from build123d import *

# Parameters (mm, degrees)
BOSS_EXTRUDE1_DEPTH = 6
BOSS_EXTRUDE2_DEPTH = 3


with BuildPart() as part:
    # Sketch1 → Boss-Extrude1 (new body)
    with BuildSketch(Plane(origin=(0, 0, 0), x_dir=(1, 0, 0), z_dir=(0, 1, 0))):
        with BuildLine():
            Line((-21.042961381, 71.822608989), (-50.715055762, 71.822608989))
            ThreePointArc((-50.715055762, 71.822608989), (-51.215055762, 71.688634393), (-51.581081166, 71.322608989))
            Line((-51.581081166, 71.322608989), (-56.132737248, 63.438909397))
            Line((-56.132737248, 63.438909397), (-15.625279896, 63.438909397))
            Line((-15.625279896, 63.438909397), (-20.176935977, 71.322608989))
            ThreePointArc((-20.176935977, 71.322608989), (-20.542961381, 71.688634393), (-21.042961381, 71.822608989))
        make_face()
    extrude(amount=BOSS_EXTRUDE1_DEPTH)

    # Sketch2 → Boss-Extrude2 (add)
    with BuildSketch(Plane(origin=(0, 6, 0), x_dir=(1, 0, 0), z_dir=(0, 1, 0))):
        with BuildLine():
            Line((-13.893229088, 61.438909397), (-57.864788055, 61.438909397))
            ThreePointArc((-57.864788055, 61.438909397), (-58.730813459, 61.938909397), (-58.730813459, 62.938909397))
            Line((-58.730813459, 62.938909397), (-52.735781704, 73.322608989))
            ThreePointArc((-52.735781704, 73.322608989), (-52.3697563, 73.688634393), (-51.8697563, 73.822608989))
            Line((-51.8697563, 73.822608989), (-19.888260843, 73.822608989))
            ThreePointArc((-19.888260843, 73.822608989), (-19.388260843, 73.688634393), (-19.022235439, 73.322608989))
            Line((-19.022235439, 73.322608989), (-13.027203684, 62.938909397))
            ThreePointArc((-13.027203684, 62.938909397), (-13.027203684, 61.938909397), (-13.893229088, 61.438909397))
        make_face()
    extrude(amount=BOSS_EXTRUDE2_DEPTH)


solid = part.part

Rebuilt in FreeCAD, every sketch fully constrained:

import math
import FreeCAD as App
import Part
import Sketcher

V = App.Vector
Q = App.Units.Quantity

doc = App.newDocument("Part")
body = doc.addObject("PartDesign::Body", "Body")

# Sketch on XZ plane
sketch1 = doc.addObject("Sketcher::SketchObject", "Sketch")
body.addObject(sketch1)
sketch1.AttachmentSupport = (doc.XZ_Plane, [""])
sketch1.MapMode = "FlatFace"
sketch1.addGeometry([
    Part.LineSegment(V(-21.042961, -71.822609, 0), V(-50.715056, -71.822609, 0)),  # 0
    Part.ArcOfCircle(Part.Circle(V(-50.715056, -70.822609, 0), V(0, 0, 1), 1), math.radians(-150), math.radians(-90)),  # 1
    Part.LineSegment(V(-51.581081, -71.322609, 0), V(-56.132737, -63.438909, 0)),  # 2
    Part.LineSegment(V(-56.132737, -63.438909, 0), V(-15.62528, -63.438909, 0)),  # 3
    Part.LineSegment(V(-15.62528, -63.438909, 0), V(-20.176936, -71.322609, 0)),  # 4
    Part.ArcOfCircle(Part.Circle(V(-21.042961, -70.822609, 0), V(0, 0, 1), 1), math.radians(-90), math.radians(-30)),  # 5
], False)
sketch1.addConstraint([
    Sketcher.Constraint("Tangent", 0, 2, 1, 2),
    Sketcher.Constraint("Tangent", 1, 1, 2, 1),
    Sketcher.Constraint("Coincident", 2, 2, 3, 1),
    Sketcher.Constraint("Coincident", 3, 2, 4, 1),
    Sketcher.Constraint("Tangent", 4, 2, 5, 2),
    Sketcher.Constraint("Tangent", 5, 1, 0, 1),
    Sketcher.Constraint("Horizontal", 0),
    Sketcher.Constraint("Horizontal", 3),
    Sketcher.Constraint("Equal", 1, 5),
    Sketcher.Constraint("Horizontal", 1, 1, 4, 2),
    Sketcher.Constraint("Radius", 1, 1.0),
    Sketcher.Constraint("Angle", 2, Q("120 deg")),
    Sketcher.Constraint("DistanceY", 1, 1, 2, 2, 7.8837),
    Sketcher.Constraint("DistanceX", 1, 1, 3, 2, 35.955801),
    Sketcher.Constraint("DistanceY", 1, 3, -1, 1, 70.822609),
    Sketcher.Constraint("DistanceX", 5, 3, -1, 1, 21.042961),
])
pad1 = doc.addObject("PartDesign::Pad", "Pad")
body.addObject(pad1)
pad1.Profile = sketch1
pad1.Length = 6
pad1.Reversed = True

# Sketch on XZ plane
sketch2 = doc.addObject("Sketcher::SketchObject", "Sketch001")
body.addObject(sketch2)
sketch2.AttachmentSupport = (doc.XZ_Plane, [""])
sketch2.MapMode = "FlatFace"
sketch2.AttachmentOffset = App.Placement(V(0, 0, -6), App.Rotation())
sketch2.addGeometry([
    Part.LineSegment(V(-57.864788, -61.438909, 0), V(-13.893229, -61.438909, 0)),  # 0
    Part.ArcOfCircle(Part.Circle(V(-13.893229, -62.438909, 0), V(0, 0, 1), 1), math.radians(-30), math.radians(90)),  # 1
    Part.LineSegment(V(-13.027204, -62.938909, 0), V(-19.022235, -73.322609, 0)),  # 2
    Part.ArcOfCircle(Part.Circle(V(-19.888261, -72.822609, 0), V(0, 0, 1), 1), math.radians(-90), math.radians(-30)),  # 3
    Part.LineSegment(V(-19.888261, -73.822609, 0), V(-51.869756, -73.822609, 0)),  # 4
    Part.ArcOfCircle(Part.Circle(V(-51.869756, -72.822609, 0), V(0, 0, 1), 1), math.radians(-150), math.radians(-90)),  # 5
    Part.LineSegment(V(-52.735782, -73.322609, 0), V(-58.730813, -62.938909, 0)),  # 6
    Part.ArcOfCircle(Part.Circle(V(-57.864788, -62.438909, 0), V(0, 0, 1), 1), math.radians(90), math.radians(210)),  # 7
], False)
sketch2.addConstraint([
    Sketcher.Constraint("Tangent", 0, 2, 1, 2),
    Sketcher.Constraint("Tangent", 1, 1, 2, 1),
    Sketcher.Constraint("Tangent", 2, 2, 3, 2),
    Sketcher.Constraint("Tangent", 3, 1, 4, 1),
    Sketcher.Constraint("Tangent", 4, 2, 5, 2),
    Sketcher.Constraint("Tangent", 5, 1, 6, 1),
    Sketcher.Constraint("Tangent", 6, 2, 7, 2),
    Sketcher.Constraint("Tangent", 7, 1, 0, 1),
    Sketcher.Constraint("Horizontal", 0),
    Sketcher.Constraint("Horizontal", 4),
    Sketcher.Constraint("Equal", 1, 3),
    Sketcher.Constraint("Equal", 3, 5),
    Sketcher.Constraint("Equal", 5, 7),
    Sketcher.Constraint("Horizontal", 2, 2, 5, 1),
    Sketcher.Constraint("Radius", 1, 1.0),
    Sketcher.Constraint("Angle", 2, Q("-120 deg")),
    Sketcher.Constraint("DistanceX", 0, 1, 0, 2, 43.971559),
    Sketcher.Constraint("DistanceY", 3, 3, 1, 3, 10.3837),
    Sketcher.Constraint("DistanceX", 1, 3, -1, 1, 13.893229),
    Sketcher.Constraint("DistanceY", 1, 3, -1, 1, 62.438909),
])
pad2 = doc.addObject("PartDesign::Pad", "Pad001")
body.addObject(pad2)
pad2.Profile = sketch2
pad2.Length = 3
pad2.Reversed = True

doc.recompute()
